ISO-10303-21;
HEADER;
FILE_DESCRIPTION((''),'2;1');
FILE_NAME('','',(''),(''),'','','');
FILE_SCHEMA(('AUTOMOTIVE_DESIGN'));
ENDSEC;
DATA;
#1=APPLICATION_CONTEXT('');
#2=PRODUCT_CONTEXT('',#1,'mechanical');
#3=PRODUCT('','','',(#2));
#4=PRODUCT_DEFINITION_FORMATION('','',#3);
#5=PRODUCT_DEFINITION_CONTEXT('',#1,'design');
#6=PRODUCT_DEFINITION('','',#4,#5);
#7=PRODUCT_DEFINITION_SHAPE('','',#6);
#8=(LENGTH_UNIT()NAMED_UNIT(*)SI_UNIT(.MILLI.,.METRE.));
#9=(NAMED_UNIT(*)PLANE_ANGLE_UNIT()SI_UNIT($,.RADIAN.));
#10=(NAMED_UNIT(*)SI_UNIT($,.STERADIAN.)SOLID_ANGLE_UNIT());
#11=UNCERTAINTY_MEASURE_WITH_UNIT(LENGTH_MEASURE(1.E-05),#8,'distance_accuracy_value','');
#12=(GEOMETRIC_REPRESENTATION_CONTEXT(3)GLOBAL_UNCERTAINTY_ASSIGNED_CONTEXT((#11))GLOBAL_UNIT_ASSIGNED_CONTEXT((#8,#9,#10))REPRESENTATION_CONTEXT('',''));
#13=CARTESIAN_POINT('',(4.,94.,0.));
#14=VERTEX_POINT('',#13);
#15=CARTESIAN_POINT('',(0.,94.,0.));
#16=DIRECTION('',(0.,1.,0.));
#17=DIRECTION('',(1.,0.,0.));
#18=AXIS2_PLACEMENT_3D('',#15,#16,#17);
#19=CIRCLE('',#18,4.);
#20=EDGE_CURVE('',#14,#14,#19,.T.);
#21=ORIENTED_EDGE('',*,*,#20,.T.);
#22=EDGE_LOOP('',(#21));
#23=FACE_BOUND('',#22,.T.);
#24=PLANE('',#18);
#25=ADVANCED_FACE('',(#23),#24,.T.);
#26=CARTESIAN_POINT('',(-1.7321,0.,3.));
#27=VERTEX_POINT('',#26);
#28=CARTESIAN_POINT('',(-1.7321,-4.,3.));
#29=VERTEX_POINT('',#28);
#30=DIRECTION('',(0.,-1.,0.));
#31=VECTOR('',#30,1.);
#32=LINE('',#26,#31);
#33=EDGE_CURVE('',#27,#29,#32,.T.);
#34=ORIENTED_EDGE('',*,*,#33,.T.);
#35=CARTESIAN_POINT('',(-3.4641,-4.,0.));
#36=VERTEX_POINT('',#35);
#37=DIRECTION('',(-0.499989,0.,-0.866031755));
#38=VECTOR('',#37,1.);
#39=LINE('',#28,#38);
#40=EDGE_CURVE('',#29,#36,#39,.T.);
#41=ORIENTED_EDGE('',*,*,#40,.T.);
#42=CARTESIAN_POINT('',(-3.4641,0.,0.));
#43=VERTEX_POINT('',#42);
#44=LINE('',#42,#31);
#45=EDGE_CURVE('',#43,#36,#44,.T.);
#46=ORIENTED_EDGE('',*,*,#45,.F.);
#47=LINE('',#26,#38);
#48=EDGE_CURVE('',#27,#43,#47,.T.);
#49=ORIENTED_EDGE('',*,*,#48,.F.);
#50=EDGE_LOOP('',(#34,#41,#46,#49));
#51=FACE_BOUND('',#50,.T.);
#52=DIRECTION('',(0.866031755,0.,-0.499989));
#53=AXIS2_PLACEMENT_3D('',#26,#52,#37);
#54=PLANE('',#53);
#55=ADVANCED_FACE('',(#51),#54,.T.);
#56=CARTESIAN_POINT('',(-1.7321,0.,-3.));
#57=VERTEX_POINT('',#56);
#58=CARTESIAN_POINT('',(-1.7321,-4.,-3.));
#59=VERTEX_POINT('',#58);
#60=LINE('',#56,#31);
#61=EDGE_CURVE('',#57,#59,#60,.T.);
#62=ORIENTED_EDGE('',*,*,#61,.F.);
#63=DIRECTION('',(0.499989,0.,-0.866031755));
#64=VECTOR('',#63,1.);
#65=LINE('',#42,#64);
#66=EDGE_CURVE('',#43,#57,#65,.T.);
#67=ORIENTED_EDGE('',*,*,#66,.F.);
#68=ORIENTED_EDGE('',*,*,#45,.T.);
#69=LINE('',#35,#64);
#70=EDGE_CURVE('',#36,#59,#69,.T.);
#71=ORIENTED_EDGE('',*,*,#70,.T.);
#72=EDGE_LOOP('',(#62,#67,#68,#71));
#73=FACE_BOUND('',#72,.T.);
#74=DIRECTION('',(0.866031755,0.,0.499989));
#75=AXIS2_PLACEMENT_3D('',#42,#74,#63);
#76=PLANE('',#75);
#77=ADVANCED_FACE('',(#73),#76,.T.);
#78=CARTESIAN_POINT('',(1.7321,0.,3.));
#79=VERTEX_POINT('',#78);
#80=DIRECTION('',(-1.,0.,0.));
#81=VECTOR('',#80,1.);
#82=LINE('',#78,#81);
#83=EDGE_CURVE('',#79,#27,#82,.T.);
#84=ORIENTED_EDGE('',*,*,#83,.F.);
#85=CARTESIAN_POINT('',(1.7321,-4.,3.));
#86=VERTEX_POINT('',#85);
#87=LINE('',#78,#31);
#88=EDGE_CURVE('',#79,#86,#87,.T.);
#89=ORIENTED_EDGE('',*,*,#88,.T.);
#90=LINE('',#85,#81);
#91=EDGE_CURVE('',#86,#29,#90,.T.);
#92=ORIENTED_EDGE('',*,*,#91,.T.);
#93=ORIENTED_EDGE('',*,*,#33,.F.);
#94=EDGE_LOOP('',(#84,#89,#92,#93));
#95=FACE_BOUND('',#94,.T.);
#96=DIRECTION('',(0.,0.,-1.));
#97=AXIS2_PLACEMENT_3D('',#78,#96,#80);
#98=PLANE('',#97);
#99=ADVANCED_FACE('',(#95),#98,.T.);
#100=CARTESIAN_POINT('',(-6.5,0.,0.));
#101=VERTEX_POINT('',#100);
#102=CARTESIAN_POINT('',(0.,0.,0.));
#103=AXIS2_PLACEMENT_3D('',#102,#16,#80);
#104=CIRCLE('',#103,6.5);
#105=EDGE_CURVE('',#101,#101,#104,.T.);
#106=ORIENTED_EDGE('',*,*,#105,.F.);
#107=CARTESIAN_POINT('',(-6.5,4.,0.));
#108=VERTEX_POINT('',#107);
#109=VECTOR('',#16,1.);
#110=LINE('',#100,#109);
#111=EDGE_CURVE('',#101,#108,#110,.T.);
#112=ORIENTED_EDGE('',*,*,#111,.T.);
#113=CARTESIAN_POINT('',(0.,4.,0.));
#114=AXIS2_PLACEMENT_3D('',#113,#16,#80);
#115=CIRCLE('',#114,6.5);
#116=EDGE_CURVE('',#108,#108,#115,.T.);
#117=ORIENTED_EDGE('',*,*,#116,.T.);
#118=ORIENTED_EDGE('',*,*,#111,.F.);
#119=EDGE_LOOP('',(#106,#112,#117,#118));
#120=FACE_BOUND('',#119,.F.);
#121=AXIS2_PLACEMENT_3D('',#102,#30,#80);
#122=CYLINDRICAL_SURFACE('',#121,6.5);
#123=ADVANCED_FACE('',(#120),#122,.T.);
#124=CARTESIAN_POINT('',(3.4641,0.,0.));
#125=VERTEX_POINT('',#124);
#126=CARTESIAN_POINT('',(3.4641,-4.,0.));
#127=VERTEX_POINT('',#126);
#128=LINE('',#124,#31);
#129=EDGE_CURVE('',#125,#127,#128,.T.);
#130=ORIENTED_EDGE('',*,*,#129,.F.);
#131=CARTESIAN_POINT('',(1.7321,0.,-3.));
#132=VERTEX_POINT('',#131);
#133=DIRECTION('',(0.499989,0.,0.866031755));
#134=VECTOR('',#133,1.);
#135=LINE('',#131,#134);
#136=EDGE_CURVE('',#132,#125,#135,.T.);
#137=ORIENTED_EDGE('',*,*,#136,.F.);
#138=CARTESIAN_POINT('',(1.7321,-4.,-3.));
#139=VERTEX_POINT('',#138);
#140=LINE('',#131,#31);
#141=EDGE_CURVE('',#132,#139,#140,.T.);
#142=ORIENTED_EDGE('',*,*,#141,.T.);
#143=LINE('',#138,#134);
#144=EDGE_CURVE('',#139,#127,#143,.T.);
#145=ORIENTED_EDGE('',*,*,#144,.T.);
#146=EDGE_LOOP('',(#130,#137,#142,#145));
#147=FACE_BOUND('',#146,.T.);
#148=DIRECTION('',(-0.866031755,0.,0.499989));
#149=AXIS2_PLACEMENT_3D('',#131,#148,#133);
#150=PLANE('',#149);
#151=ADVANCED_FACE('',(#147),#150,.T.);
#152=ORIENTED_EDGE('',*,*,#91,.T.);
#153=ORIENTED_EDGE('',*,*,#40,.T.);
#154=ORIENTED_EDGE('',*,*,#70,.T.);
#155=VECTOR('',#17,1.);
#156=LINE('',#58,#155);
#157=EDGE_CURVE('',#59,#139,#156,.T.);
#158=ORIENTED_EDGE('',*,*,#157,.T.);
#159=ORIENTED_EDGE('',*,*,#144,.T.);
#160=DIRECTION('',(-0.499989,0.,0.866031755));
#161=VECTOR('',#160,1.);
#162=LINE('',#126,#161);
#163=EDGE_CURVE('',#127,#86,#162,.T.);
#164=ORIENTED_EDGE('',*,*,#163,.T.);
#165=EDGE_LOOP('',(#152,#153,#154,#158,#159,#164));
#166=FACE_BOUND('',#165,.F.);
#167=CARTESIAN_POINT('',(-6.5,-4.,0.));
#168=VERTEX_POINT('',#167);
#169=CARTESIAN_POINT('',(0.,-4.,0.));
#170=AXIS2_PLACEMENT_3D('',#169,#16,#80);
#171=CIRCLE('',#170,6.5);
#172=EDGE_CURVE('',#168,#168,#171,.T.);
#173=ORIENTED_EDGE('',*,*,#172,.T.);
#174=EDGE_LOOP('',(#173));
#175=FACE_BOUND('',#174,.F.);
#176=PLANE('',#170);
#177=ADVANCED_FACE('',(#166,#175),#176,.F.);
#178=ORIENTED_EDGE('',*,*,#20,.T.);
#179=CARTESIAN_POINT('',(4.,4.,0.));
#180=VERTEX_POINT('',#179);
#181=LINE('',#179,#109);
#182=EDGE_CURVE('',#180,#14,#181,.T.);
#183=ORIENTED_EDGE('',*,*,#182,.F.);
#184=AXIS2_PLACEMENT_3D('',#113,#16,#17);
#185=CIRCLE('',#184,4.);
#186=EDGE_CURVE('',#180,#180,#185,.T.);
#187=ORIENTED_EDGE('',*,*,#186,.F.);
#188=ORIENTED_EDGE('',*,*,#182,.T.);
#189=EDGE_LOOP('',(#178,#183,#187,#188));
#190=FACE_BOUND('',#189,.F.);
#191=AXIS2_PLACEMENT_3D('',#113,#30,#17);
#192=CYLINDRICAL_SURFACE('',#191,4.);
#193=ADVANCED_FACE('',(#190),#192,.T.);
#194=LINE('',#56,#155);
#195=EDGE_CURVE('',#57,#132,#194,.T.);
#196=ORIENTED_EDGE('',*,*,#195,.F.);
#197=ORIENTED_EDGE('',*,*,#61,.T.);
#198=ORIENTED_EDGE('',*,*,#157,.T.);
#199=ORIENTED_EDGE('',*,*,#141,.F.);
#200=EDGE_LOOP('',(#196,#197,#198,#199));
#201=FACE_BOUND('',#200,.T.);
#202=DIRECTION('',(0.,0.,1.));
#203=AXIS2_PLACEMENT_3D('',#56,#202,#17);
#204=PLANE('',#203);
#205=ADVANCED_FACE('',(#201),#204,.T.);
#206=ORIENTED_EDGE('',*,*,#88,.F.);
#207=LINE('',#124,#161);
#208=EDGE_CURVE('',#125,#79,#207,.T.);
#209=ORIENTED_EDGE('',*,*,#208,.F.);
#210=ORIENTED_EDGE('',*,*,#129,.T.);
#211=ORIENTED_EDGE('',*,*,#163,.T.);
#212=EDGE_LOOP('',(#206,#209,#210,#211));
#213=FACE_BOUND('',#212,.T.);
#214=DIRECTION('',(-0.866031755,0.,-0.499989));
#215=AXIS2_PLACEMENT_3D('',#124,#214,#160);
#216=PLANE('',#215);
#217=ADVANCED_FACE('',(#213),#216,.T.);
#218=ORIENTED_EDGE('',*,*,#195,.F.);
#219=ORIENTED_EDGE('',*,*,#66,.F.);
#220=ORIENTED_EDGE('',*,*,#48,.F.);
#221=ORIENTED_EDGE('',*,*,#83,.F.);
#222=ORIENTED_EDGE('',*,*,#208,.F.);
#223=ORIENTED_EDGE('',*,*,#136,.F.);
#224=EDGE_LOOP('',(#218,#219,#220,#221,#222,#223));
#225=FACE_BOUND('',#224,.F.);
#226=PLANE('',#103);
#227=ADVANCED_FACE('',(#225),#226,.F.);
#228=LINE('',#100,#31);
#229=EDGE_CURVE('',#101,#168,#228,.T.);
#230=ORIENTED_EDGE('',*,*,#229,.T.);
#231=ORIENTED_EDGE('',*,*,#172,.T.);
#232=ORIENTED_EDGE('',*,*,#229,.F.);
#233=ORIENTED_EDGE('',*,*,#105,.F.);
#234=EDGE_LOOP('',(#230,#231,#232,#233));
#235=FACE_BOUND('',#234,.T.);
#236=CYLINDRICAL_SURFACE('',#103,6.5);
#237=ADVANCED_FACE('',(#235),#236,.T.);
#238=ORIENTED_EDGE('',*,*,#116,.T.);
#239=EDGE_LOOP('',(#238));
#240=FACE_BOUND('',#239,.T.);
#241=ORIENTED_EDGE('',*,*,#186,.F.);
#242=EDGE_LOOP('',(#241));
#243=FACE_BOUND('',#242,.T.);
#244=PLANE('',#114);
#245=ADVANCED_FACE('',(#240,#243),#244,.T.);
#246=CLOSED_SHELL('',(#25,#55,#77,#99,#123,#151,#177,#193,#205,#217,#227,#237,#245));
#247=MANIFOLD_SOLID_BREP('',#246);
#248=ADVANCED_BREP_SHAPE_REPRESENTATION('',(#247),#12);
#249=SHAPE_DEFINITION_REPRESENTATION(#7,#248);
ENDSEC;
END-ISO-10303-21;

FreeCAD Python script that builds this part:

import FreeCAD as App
import Part
import Sketcher
from FreeCAD import Vector
Q = App.Units.Quantity


def add_polygon(sketch, points):
    """Adds a closed chain of lines whose ends are joined by coincident constraints."""
    first, n = sketch.GeometryCount, len(points)
    for a, b in zip(points, points[1:] + points[:1]):
        sketch.addGeometry(Part.LineSegment(App.Vector(*a, 0), App.Vector(*b, 0)), False)
    for i in range(n):
        sketch.addConstraint(Sketcher.Constraint("Coincident", first + i, 2, first + (i + 1) % n, 1))

doc = App.newDocument("Part")
params = doc.addObject("Spreadsheet::Sheet", "Params")
for row, (alias, value) in enumerate([
    ("sketch1_diameter", "13 mm"),
    ("pad1_length", "4 mm"),
    ("sketch2_diameter", "13 mm"),
    ("pad2_length", "4 mm"),
    ("sketch3_diameter", "8 mm"),
    ("pad3_length", "90 mm"),
], start=1):
    params.set(f"A{row}", alias)
    params.set(f"B{row}", "=" + value)
    params.setAlias(f"B{row}", alias)

body = doc.addObject("PartDesign::Body", "Body")

# Sketch on XZ plane
sketch1 = body.newObject("Sketcher::SketchObject", "Sketch")
sketch1.AttachmentSupport = (doc.getObject("XZ_Plane"), [""])
sketch1.MapMode = "FlatFace"
sketch1.addGeometry(Part.Circle(Vector(0, 0, 0), Vector(0, 0, 1), 6), False)
sketch1.addConstraint([
    Sketcher.Constraint("Coincident", 0, 3, -1, 1),
    Sketcher.Constraint("Diameter", 0, Q("13 mm")),
])
sketch1.setExpression("Constraints[1]", "Params.sketch1_diameter")
pad1 = body.newObject("PartDesign::Pad", "Pad")
pad1.Profile = sketch1
pad1.setExpression("Length", "Params.pad1_length")
pad1.Reversed = True

# Sketch on XZ plane
sketch2 = body.newObject("Sketcher::SketchObject", "Sketch001")
sketch2.AttachmentSupport = (doc.getObject("XZ_Plane"), [""])
sketch2.MapMode = "FlatFace"
sketch2.addGeometry(Part.Circle(Vector(0, 0, 0), Vector(0, 0, 1), 6.5), False)  # 0
add_polygon(sketch2, [(-1.7, 3), (-3.5, 0), (-1.7, -3), (1.7, -3), (3.5, 0), (1.7, 3)])  # lines 1-6
sketch2.addConstraint([
    Sketcher.Constraint("Horizontal", 3),
    Sketcher.Constraint("Horizontal", 6),
    Sketcher.Constraint("Coincident", 0, 3, -1, 1),
    Sketcher.Constraint("Symmetric", 1, 2, 4, 2, -1, 1),
    Sketcher.Constraint("Symmetric", 2, 2, 5, 2, -1, 1),
    Sketcher.Constraint("PointOnObject", 1, 2, -1),
    Sketcher.Constraint("Parallel", 1, 4),
    Sketcher.Constraint("Vertical", 3, 2, 5, 2),
    Sketcher.Constraint("Diameter", 0, Q("13 mm")),
    Sketcher.Constraint("DistanceY", 3, 2, 5, 2, Q("6 mm")),
    Sketcher.Constraint("Angle", 1, Q("-119.9993 deg")),
    Sketcher.Constraint("DistanceX", 3, 1, 3, 2, Q("3.4642 mm")),
])
sketch2.setExpression("Constraints[14]", "Params.sketch2_diameter")
pad2 = body.newObject("PartDesign::Pad", "Pad001")
pad2.Profile = sketch2
pad2.setExpression("Length", "Params.pad2_length")

# Sketch on XZ plane
sketch3 = body.newObject("Sketcher::SketchObject", "Sketch002")
sketch3.AttachmentSupport = (doc.getObject("XZ_Plane"), [""])
sketch3.MapMode = "FlatFace"
sketch3.AttachmentOffset = App.Placement(Vector(0, 0, -4), App.Rotation())
sketch3.addGeometry(Part.Circle(Vector(0, 0, 0), Vector(0, 0, 1), 4), False)
sketch3.addConstraint([
    Sketcher.Constraint("Coincident", 0, 3, -1, 1),
    Sketcher.Constraint("Diameter", 0, Q("8 mm")),
])
sketch3.setExpression("Constraints[1]", "Params.sketch3_diameter")
pad3 = body.newObject("PartDesign::Pad", "Pad002")
pad3.Profile = sketch3
pad3.setExpression("Length", "Params.pad3_length")
pad3.Reversed = True

doc.recompute()
